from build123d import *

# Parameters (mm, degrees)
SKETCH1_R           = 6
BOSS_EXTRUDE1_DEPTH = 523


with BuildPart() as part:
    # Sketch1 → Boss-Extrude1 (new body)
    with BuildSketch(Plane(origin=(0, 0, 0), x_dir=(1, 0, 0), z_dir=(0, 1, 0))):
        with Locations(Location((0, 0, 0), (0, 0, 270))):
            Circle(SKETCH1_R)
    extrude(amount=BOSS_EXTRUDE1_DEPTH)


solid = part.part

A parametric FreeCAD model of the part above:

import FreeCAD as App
import Part
import Sketcher

V = App.Vector
Q = App.Units.Quantity

doc = App.newDocument("Part")
body = doc.addObject("PartDesign::Body", "Body")

# Sketch on XZ plane
sketch1 = doc.addObject("Sketcher::SketchObject", "Sketch")
body.addObject(sketch1)
sketch1.AttachmentSupport = (doc.XZ_Plane, [""])
sketch1.MapMode = "FlatFace"
sketch1.addGeometry(Part.Circle(V(0, 0, 0), V(0, 0, 1), 6), False)
sketch1.addConstraint(Sketcher.Constraint("Coincident", 0, 3, -1, 1))
sketch1.addConstraint(Sketcher.Constraint("Diameter", 0, Q("12 mm")))
pad1 = doc.addObject("PartDesign::Pad", "Pad")
body.addObject(pad1)
pad1.Profile = sketch1
pad1.Length = 523
pad1.Reversed = True

doc.recompute()
